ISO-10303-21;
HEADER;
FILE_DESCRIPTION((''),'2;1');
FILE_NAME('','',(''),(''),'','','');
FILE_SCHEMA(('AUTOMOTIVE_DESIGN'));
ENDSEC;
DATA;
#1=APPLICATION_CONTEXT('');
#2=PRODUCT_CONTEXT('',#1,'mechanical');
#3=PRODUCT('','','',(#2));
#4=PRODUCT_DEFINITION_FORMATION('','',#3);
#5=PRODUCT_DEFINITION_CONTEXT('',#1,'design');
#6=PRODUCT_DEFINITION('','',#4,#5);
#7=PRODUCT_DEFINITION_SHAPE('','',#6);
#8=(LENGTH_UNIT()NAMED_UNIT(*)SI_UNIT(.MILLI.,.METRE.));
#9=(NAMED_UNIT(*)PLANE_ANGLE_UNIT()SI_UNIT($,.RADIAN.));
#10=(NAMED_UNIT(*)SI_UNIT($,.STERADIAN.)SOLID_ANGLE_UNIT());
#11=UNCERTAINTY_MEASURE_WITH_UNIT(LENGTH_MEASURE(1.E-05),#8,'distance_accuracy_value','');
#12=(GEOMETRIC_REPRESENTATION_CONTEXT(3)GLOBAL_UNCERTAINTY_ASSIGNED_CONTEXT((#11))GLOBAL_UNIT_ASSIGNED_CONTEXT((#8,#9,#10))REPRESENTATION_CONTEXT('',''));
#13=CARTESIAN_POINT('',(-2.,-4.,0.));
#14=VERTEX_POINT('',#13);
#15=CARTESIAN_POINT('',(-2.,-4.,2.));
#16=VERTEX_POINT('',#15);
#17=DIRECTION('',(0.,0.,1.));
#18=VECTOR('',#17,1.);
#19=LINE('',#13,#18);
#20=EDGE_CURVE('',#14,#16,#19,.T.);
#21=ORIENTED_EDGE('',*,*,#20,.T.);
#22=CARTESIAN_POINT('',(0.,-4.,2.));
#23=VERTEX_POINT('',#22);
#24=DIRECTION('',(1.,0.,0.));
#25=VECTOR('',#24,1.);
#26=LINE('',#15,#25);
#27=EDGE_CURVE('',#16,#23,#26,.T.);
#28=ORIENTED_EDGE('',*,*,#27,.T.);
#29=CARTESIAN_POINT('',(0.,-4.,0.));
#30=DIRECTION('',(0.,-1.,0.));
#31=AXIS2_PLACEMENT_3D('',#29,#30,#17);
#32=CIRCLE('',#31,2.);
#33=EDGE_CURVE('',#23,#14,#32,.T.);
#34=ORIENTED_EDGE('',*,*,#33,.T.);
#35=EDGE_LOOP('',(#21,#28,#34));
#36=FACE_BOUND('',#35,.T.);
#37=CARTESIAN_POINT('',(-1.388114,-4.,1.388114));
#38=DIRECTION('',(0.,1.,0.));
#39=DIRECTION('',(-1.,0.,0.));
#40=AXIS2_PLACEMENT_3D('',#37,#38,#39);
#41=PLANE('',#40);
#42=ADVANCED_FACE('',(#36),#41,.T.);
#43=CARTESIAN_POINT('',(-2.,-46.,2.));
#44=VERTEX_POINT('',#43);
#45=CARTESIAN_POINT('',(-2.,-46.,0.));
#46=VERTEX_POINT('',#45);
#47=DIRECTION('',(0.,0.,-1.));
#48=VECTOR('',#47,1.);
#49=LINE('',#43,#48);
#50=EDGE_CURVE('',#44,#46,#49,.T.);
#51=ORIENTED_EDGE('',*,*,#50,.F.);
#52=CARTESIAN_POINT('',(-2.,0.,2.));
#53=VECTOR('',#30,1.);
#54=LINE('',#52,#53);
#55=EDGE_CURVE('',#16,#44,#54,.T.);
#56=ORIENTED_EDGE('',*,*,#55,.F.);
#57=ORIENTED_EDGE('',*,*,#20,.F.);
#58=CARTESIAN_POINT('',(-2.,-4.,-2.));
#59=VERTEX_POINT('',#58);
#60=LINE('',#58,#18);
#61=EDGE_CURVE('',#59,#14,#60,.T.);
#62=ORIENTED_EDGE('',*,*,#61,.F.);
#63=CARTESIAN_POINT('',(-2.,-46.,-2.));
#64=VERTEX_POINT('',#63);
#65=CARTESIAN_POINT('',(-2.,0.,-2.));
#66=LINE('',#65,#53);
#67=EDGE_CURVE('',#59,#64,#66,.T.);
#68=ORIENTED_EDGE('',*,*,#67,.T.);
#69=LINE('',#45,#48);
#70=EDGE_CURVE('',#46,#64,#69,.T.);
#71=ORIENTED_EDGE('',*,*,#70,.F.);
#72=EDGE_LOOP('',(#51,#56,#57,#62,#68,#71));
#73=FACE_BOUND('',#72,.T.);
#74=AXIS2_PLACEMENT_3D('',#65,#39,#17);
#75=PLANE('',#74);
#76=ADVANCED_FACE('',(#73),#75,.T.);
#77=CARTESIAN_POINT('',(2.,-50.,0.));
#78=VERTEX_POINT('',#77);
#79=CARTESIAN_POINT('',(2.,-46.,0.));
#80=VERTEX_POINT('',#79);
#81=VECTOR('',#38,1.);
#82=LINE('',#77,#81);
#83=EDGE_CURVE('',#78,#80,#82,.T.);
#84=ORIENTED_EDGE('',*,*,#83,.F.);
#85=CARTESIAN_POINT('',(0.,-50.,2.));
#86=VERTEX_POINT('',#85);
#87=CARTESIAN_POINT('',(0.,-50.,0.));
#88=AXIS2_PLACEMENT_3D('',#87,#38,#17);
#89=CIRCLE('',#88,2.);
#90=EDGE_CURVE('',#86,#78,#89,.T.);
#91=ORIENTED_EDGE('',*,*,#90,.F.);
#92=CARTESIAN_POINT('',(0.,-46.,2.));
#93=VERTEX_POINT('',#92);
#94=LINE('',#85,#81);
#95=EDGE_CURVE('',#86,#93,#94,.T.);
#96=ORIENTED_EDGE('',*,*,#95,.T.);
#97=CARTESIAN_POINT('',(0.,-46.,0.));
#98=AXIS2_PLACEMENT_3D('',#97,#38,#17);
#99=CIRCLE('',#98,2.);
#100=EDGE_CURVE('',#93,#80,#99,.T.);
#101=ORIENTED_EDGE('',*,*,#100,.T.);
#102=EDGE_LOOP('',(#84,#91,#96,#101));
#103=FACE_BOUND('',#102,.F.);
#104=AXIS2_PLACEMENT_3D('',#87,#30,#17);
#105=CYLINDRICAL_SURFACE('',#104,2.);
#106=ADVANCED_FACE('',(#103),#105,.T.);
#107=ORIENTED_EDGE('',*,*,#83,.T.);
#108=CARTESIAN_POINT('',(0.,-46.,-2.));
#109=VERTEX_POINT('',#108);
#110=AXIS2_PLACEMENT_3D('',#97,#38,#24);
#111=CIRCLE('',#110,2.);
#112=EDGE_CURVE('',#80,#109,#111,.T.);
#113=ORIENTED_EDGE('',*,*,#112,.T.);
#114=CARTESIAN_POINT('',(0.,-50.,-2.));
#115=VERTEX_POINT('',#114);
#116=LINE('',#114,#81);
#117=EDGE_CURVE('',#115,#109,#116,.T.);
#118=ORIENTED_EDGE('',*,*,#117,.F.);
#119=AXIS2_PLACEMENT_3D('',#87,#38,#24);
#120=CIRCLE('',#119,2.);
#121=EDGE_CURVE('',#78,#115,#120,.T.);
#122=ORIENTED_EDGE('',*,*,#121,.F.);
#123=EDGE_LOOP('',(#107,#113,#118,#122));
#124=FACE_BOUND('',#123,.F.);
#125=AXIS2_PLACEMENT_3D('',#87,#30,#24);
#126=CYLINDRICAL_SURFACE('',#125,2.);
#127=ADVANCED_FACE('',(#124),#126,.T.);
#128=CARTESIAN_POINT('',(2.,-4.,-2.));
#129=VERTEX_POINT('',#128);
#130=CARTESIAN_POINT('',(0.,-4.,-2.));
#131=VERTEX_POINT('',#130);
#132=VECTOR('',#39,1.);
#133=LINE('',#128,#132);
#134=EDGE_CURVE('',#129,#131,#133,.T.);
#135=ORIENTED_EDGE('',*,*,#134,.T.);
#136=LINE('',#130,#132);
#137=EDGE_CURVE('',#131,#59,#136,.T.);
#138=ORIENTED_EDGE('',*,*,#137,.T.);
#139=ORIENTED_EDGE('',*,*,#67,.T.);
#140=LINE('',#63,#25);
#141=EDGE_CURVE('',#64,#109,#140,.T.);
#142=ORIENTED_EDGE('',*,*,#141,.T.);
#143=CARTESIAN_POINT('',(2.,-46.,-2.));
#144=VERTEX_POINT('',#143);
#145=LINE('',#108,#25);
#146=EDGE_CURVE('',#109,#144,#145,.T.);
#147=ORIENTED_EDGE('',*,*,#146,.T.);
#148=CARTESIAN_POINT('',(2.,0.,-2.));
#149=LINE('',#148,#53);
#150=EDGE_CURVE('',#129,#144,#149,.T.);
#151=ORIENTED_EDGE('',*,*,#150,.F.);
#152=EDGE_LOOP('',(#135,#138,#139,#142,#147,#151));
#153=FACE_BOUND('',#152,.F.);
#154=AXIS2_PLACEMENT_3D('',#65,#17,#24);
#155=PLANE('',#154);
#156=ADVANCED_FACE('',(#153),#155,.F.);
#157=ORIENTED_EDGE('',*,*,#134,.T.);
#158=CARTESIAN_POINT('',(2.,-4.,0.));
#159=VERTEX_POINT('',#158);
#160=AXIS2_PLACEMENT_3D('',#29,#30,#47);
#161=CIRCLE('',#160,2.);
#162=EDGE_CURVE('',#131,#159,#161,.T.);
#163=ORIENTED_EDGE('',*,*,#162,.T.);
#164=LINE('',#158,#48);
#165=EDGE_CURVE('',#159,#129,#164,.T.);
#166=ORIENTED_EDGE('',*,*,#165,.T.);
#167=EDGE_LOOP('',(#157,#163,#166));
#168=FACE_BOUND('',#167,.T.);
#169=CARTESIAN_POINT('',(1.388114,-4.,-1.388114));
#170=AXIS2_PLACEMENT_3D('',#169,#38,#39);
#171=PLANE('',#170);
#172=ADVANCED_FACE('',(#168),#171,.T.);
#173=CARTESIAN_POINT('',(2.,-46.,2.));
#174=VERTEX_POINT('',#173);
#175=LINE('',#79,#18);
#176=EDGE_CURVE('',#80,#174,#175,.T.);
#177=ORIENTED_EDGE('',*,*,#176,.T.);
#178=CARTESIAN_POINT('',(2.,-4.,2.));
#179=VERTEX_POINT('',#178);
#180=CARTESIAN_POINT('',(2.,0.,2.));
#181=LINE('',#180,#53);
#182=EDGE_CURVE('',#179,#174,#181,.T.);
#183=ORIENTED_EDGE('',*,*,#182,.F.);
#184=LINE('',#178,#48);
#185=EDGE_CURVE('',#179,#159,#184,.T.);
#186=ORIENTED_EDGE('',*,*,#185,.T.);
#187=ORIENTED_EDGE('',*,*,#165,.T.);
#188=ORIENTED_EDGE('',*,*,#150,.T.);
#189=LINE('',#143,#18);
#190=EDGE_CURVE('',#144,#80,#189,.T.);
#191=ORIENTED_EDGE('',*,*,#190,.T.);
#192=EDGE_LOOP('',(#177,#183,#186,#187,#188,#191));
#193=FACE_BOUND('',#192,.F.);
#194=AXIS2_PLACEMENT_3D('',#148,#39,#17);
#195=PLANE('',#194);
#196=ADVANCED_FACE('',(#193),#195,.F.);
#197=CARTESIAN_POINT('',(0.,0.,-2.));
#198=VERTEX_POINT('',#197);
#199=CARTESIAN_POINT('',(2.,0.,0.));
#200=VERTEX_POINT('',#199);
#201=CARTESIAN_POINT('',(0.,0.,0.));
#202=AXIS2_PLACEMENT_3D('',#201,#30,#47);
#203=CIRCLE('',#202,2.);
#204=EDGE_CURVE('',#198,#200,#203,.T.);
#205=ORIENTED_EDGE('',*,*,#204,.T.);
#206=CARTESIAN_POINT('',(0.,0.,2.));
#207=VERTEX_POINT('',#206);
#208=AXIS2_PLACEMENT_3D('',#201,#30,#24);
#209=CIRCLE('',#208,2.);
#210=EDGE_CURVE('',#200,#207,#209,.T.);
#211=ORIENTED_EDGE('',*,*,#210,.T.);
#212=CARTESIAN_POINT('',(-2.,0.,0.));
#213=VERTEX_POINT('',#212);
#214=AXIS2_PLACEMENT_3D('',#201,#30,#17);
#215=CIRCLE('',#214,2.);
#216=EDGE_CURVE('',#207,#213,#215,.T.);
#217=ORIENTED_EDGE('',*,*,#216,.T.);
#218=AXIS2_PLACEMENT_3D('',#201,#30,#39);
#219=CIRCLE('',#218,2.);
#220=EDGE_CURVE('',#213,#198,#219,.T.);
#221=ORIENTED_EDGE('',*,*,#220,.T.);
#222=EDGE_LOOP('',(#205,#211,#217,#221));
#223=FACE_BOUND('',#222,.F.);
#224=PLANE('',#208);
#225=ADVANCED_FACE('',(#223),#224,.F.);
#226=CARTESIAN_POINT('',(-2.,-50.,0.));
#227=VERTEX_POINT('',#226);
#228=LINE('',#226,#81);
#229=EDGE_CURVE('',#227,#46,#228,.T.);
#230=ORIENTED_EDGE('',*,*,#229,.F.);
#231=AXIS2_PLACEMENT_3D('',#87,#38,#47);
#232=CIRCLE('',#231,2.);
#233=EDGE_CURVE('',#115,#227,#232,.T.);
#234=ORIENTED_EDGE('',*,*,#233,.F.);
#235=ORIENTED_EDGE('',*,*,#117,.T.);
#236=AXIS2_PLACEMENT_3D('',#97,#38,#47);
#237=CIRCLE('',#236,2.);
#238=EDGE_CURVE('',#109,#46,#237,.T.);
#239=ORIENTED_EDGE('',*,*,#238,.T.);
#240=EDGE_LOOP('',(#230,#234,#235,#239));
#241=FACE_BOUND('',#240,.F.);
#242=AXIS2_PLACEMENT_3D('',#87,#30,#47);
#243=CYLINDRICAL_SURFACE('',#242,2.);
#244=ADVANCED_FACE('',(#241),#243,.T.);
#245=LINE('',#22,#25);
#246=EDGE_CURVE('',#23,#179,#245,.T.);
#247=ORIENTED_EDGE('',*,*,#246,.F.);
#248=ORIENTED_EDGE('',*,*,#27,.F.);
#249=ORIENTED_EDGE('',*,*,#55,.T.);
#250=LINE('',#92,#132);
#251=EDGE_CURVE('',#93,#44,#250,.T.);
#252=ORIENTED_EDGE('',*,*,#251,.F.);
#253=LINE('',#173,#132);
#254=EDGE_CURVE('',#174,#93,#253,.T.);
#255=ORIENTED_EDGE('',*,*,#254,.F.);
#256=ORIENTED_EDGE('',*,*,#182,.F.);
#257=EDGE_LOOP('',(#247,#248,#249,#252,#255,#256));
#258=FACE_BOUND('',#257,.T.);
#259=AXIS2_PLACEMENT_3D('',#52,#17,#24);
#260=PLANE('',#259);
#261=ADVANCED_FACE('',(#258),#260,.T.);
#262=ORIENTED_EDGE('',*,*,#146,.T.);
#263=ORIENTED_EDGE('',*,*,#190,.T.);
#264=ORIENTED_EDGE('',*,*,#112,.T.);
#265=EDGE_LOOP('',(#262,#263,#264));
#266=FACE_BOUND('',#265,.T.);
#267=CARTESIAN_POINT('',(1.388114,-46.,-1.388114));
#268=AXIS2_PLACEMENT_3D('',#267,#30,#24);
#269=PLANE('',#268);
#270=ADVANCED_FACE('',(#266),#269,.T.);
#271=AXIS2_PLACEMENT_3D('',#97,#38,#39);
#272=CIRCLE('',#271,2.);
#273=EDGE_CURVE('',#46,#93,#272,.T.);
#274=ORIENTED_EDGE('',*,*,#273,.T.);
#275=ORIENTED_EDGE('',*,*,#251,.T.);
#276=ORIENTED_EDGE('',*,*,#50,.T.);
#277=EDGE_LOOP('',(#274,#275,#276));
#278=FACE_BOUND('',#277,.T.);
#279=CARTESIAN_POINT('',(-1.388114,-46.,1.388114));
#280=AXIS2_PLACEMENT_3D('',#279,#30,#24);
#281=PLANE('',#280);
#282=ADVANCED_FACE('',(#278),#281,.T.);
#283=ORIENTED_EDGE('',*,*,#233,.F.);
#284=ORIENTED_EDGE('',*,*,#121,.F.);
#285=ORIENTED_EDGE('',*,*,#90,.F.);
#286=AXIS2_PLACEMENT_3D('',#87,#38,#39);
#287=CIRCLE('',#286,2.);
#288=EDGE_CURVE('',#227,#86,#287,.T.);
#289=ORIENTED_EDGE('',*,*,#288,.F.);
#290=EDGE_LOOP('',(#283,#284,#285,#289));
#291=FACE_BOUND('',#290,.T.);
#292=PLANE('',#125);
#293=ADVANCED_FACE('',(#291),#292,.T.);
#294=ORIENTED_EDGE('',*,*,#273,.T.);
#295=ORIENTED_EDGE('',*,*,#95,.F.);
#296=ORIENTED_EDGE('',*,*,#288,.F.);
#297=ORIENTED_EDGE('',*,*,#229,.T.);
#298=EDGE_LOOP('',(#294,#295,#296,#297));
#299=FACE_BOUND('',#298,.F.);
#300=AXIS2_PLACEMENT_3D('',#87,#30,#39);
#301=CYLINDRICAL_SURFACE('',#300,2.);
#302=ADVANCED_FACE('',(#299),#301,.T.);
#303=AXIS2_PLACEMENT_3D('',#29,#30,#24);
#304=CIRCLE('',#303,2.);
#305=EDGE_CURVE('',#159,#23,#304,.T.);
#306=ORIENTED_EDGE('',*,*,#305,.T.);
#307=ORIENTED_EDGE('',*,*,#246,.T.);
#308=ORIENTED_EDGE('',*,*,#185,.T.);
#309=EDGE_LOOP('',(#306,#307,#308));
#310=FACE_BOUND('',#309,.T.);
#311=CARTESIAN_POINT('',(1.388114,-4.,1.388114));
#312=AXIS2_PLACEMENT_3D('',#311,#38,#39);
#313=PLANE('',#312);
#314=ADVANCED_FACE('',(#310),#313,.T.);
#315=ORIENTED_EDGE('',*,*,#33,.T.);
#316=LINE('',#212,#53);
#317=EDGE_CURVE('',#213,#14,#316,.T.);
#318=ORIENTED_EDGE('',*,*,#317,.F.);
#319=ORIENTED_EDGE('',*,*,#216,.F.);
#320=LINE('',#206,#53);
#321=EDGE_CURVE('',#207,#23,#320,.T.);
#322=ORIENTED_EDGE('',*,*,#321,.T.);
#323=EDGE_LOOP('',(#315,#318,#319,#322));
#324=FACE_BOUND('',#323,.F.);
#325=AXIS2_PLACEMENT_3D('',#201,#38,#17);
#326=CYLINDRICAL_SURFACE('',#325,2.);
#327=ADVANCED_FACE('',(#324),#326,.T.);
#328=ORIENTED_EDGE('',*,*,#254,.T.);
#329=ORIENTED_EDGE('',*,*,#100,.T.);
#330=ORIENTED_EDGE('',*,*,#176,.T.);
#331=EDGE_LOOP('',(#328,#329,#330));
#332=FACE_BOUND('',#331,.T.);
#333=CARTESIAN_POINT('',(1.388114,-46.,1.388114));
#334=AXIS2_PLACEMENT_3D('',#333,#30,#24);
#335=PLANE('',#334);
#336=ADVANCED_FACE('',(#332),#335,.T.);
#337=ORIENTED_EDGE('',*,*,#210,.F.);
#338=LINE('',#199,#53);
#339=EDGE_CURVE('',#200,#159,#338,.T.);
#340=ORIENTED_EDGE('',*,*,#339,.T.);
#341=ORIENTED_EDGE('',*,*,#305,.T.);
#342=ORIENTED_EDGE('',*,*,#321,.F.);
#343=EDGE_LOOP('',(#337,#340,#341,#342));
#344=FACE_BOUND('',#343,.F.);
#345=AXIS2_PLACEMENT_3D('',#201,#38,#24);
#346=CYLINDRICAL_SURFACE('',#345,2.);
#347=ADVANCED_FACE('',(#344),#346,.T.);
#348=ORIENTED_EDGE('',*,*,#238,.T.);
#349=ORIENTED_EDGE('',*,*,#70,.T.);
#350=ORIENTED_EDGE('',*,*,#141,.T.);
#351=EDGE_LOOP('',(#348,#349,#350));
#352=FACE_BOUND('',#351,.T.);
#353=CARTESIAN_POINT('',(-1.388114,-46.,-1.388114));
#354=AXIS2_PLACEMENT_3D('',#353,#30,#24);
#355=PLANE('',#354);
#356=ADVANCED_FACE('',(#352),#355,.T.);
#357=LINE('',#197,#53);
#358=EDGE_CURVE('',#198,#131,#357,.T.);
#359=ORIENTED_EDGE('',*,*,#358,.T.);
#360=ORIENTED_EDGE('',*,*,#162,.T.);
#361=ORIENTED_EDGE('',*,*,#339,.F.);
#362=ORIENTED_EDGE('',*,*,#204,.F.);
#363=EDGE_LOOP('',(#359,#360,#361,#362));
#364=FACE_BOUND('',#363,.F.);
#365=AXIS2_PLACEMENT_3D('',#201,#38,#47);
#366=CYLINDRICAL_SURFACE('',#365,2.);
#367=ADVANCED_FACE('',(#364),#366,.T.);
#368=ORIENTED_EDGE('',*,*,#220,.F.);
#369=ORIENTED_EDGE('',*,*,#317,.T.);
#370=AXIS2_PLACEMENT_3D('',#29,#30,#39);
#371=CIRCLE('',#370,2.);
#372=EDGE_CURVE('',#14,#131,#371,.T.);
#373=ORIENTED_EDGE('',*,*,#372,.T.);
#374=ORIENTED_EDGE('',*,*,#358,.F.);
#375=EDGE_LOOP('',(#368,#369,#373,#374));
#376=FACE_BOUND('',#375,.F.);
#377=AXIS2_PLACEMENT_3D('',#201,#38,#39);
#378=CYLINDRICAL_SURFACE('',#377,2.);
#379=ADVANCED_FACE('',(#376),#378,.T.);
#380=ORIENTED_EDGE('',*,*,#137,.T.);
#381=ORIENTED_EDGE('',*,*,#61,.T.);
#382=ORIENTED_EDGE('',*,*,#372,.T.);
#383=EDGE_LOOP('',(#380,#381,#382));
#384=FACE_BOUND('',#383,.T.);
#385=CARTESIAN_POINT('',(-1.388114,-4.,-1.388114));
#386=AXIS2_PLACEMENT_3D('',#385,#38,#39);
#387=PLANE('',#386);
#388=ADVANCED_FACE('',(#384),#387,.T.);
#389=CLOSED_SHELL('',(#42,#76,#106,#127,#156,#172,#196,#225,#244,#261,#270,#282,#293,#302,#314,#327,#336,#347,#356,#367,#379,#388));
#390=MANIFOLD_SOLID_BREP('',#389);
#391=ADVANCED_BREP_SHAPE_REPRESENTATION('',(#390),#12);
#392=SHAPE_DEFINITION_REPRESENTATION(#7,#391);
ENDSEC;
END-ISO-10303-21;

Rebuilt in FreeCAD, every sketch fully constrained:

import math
import FreeCAD as App
import Part
import Sketcher
Q = App.Units.Quantity


def add_polygon(sketch, points):
    """Adds a closed chain of lines whose ends are joined by coincident constraints."""
    first, n = sketch.GeometryCount, len(points)
    for a, b in zip(points, points[1:] + points[:1]):
        sketch.addGeometry(Part.LineSegment(App.Vector(*a, 0), App.Vector(*b, 0)), False)
    for i in range(n):
        sketch.addConstraint(Sketcher.Constraint("Coincident", first + i, 2, first + (i + 1) % n, 1))

doc = App.newDocument("Part")
body = doc.addObject("PartDesign::Body", "Body")

sketch1 = body.newObject("Sketcher::SketchObject", "Sketch")
sketch1.AttachmentSupport = (doc.getObject("XZ_Plane"), [""])
sketch1.MapMode = "FlatFace"
add_polygon(sketch1, [(-2, 2), (-2, -2), (2, -2), (2, 2)])
sketch1.addConstraint([
    Sketcher.Constraint("Vertical", 0),
    Sketcher.Constraint("Horizontal", 1),
    Sketcher.Constraint("Vertical", 2),
    Sketcher.Constraint("Horizontal", 3),
    Sketcher.Constraint("Symmetric", 0, 2, 2, 2, -1, 1),
    Sketcher.Constraint("Equal", 3, 0),
    Sketcher.Constraint("DistanceX", 1, 1, 1, 2, Q("4 mm")),
])
pad1 = body.newObject("PartDesign::Pad", "Pad")
pad1.Profile = sketch1
pad1.Length = 50

sketch2 = body.newObject("Sketcher::SketchObject", "Sketch001")
sketch2.AttachmentSupport = (doc.getObject("XZ_Plane"), [""])
sketch2.MapMode = "FlatFace"
sketch2.addGeometry([
    Part.ArcOfCircle(Part.Circle(App.Vector(0, 0, 0), App.Vector(0, 0, 1), 2), math.radians(0), math.radians(90)),
    Part.LineSegment(App.Vector(0, 2, 0), App.Vector(2, 2, 0)),
    Part.LineSegment(App.Vector(2, 2, 0), App.Vector(2, 0, 0)),
    Part.LineSegment(App.Vector(2, -2, 0), App.Vector(0, -2, 0)),
    Part.ArcOfCircle(Part.Circle(App.Vector(0, 0, 0), App.Vector(0, 0, 1), 2), math.radians(-90), math.radians(0)),
    Part.LineSegment(App.Vector(2, 0, 0), App.Vector(2, -2, 0)),
    Part.LineSegment(App.Vector(-2, -2, 0), App.Vector(-2, 0, 0)),
    Part.ArcOfCircle(Part.Circle(App.Vector(0, 0, 0), App.Vector(0, 0, 1), 2), math.radians(180), math.radians(270)),
    Part.LineSegment(App.Vector(0, -2, 0), App.Vector(-2, -2, 0)),
    Part.ArcOfCircle(Part.Circle(App.Vector(0, 0, 0), App.Vector(0, 0, 1), 2), math.radians(90), math.radians(180)),
    Part.LineSegment(App.Vector(-2, 0, 0), App.Vector(-2, 2, 0)),
    Part.LineSegment(App.Vector(-2, 2, 0), App.Vector(0, 2, 0)),
], False)
sketch2.addConstraint([
    Sketcher.Constraint("Tangent", 0, 2, 1, 1),
    Sketcher.Constraint("Coincident", 1, 2, 2, 1),
    Sketcher.Constraint("Tangent", 2, 2, 0, 1),
    Sketcher.Constraint("Tangent", 3, 2, 4, 1),
    Sketcher.Constraint("Tangent", 4, 2, 5, 1),
    Sketcher.Constraint("Coincident", 5, 2, 3, 1),
    Sketcher.Constraint("Tangent", 6, 2, 7, 1),
    Sketcher.Constraint("Tangent", 7, 2, 8, 1),
    Sketcher.Constraint("Coincident", 8, 2, 6, 1),
    Sketcher.Constraint("Tangent", 9, 2, 10, 1),
    Sketcher.Constraint("Coincident", 10, 2, 11, 1),
    Sketcher.Constraint("Tangent", 11, 2, 9, 1),
    Sketcher.Constraint("Horizontal", 1),
    Sketcher.Constraint("Vertical", 2),
    Sketcher.Constraint("Horizontal", 3),
    Sketcher.Constraint("Vertical", 5),
    Sketcher.Constraint("Vertical", 6),
    Sketcher.Constraint("Horizontal", 8),
    Sketcher.Constraint("Vertical", 10),
    Sketcher.Constraint("Horizontal", 11),
    Sketcher.Constraint("Coincident", 0, 3, -1, 1),
    Sketcher.Constraint("Coincident", 4, 3, -1, 1),
    Sketcher.Constraint("Coincident", 7, 3, -1, 1),
    Sketcher.Constraint("Coincident", 9, 3, -1, 1),
    Sketcher.Constraint("Equal", 0, 4),
    Sketcher.Constraint("Equal", 4, 7),
    Sketcher.Constraint("Equal", 7, 9),
    Sketcher.Constraint("Radius", 0, Q("2 mm")),
])
pocket1 = body.newObject("PartDesign::Pocket", "Pocket")
pocket1.Profile = sketch2
pocket1.Length = 4
pocket1.Reversed = True

sketch3 = body.newObject("Sketcher::SketchObject", "Sketch002")
sketch3.AttachmentSupport = (doc.getObject("XZ_Plane"), [""])
sketch3.MapMode = "FlatFace"
sketch3.AttachmentOffset = App.Placement(App.Vector(0, 0, 50), App.Rotation())
sketch3.addGeometry([
    Part.ArcOfCircle(Part.Circle(App.Vector(0, 0, 0), App.Vector(0, 0, 1), 2), math.radians(90), math.radians(180)),
    Part.LineSegment(App.Vector(0, 2, 0), App.Vector(-2, 2, 0)),
    Part.LineSegment(App.Vector(-2, 2, 0), App.Vector(-2, 0, 0)),
    Part.LineSegment(App.Vector(-2, -2, 0), App.Vector(0, -2, 0)),
    Part.ArcOfCircle(Part.Circle(App.Vector(0, 0, 0), App.Vector(0, 0, 1), 2), math.radians(180), math.radians(270)),
    Part.LineSegment(App.Vector(-2, 0, 0), App.Vector(-2, -2, 0)),
    Part.LineSegment(App.Vector(2, -2, 0), App.Vector(2, 0, 0)),
    Part.ArcOfCircle(Part.Circle(App.Vector(0, 0, 0), App.Vector(0, 0, 1), 2), math.radians(-90), math.radians(0)),
    Part.LineSegment(App.Vector(0, -2, 0), App.Vector(2, -2, 0)),
    Part.ArcOfCircle(Part.Circle(App.Vector(0, 0, 0), App.Vector(0, 0, 1), 2), math.radians(0), math.radians(90)),
    Part.LineSegment(App.Vector(2, 0, 0), App.Vector(2, 2, 0)),
    Part.LineSegment(App.Vector(2, 2, 0), App.Vector(0, 2, 0)),
], False)
sketch3.addConstraint([
    Sketcher.Constraint("Tangent", 0, 1, 1, 1),
    Sketcher.Constraint("Coincident", 1, 2, 2, 1),
    Sketcher.Constraint("Tangent", 2, 2, 0, 2),
    Sketcher.Constraint("Tangent", 3, 2, 4, 2),
    Sketcher.Constraint("Tangent", 4, 1, 5, 1),
    Sketcher.Constraint("Coincident", 5, 2, 3, 1),
    Sketcher.Constraint("Tangent", 6, 2, 7, 2),
    Sketcher.Constraint("Tangent", 7, 1, 8, 1),
    Sketcher.Constraint("Coincident", 8, 2, 6, 1),
    Sketcher.Constraint("Tangent", 9, 1, 10, 1),
    Sketcher.Constraint("Coincident", 10, 2, 11, 1),
    Sketcher.Constraint("Tangent", 11, 2, 9, 2),
    Sketcher.Constraint("Horizontal", 1),
    Sketcher.Constraint("Vertical", 2),
    Sketcher.Constraint("Horizontal", 3),
    Sketcher.Constraint("Vertical", 5),
    Sketcher.Constraint("Vertical", 6),
    Sketcher.Constraint("Horizontal", 8),
    Sketcher.Constraint("Vertical", 10),
    Sketcher.Constraint("Horizontal", 11),
    Sketcher.Constraint("Coincident", 0, 3, -1, 1),
    Sketcher.Constraint("Coincident", 4, 3, -1, 1),
    Sketcher.Constraint("Coincident", 7, 3, -1, 1),
    Sketcher.Constraint("Coincident", 9, 3, -1, 1),
    Sketcher.Constraint("Equal", 0, 4),
    Sketcher.Constraint("Equal", 4, 7),
    Sketcher.Constraint("Equal", 7, 9),
    Sketcher.Constraint("Radius", 0, Q("2 mm")),
])
pocket2 = body.newObject("PartDesign::Pocket", "Pocket001")
pocket2.Profile = sketch3
pocket2.Length = 4

doc.recompute()
